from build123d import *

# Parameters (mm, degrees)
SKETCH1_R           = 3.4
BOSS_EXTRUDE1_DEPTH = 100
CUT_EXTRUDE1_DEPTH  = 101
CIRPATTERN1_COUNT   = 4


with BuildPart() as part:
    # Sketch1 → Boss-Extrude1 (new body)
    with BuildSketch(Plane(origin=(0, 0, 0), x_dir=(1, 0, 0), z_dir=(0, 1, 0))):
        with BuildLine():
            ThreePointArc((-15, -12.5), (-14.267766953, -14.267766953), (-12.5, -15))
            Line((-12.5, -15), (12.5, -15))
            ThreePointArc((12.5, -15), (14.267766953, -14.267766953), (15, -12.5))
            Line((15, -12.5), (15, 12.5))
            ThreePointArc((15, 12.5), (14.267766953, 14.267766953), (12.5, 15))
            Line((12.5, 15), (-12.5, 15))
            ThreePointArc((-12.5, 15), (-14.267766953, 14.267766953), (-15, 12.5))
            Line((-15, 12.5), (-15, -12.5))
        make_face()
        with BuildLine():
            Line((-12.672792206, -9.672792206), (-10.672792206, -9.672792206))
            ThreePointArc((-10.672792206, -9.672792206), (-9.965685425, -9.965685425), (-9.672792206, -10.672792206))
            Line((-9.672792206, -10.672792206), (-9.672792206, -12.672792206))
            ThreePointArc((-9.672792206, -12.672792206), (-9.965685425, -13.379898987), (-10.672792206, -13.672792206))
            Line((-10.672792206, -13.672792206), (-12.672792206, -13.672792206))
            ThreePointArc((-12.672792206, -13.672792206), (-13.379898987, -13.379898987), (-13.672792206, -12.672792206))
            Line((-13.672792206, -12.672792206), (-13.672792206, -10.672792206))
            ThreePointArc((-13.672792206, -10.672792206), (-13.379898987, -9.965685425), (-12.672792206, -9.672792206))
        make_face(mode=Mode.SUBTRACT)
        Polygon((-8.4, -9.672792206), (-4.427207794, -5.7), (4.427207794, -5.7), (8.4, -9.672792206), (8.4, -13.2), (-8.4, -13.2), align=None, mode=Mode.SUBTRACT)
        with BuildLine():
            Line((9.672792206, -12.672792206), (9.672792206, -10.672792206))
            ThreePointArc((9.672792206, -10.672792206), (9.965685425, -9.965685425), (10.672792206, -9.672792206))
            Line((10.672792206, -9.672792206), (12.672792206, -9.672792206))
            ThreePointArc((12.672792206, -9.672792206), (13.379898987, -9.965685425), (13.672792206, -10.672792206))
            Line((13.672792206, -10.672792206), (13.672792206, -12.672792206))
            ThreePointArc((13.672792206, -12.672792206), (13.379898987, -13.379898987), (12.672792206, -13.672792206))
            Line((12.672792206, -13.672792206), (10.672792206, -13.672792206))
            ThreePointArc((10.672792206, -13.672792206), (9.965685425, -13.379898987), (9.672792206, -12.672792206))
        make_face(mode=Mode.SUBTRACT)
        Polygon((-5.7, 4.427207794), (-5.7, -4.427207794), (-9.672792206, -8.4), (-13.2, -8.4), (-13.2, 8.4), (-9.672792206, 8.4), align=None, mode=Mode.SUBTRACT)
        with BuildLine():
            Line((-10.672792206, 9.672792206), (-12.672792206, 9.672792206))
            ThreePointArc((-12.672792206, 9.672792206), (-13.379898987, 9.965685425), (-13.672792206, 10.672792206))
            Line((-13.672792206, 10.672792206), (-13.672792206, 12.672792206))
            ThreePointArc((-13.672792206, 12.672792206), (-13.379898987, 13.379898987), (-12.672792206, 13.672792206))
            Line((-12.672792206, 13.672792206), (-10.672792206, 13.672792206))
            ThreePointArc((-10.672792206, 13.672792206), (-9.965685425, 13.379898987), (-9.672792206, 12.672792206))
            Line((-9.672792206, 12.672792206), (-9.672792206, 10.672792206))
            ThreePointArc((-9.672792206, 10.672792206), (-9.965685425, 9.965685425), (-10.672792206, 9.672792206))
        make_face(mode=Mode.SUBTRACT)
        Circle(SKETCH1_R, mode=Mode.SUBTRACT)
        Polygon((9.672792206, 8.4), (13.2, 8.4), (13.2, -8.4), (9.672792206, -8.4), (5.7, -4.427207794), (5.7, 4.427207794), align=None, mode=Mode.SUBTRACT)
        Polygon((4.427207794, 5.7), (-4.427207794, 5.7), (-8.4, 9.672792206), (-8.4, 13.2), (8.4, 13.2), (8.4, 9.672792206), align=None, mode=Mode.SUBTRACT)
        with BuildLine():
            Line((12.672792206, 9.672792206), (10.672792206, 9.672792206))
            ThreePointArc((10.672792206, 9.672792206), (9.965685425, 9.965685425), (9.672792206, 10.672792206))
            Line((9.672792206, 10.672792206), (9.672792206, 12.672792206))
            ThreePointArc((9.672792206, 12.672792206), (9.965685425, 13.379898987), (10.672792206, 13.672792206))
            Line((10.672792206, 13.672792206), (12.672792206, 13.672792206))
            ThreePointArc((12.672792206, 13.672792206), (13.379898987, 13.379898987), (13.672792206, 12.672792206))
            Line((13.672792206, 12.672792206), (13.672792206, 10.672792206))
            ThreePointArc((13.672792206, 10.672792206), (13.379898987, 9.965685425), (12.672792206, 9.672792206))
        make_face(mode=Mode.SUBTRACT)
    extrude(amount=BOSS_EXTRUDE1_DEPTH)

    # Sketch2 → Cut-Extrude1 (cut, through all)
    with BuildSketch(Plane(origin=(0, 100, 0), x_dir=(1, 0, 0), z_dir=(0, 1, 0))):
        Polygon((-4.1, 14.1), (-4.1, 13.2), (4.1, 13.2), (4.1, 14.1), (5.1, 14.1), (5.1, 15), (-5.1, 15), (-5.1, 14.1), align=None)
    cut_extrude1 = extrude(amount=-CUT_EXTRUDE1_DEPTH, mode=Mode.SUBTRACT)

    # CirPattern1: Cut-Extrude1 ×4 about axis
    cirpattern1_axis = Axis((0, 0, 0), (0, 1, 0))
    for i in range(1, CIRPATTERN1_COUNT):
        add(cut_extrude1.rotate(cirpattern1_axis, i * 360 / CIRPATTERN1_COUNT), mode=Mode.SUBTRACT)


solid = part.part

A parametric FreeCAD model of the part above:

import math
import FreeCAD as App
import Part
import Sketcher
Q = App.Units.Quantity


def add_polygon(sketch, points):
    """Adds a closed chain of lines whose ends are joined by coincident constraints."""
    first, n = sketch.GeometryCount, len(points)
    for a, b in zip(points, points[1:] + points[:1]):
        sketch.addGeometry(Part.LineSegment(App.Vector(*a, 0), App.Vector(*b, 0)), False)
    for i in range(n):
        sketch.addConstraint(Sketcher.Constraint("Coincident", first + i, 2, first + (i + 1) % n, 1))

doc = App.newDocument("Part")
params = doc.addObject("Spreadsheet::Sheet", "Params")
for row, (alias, value) in enumerate([
    ("sketch1_radius", "1 mm"),
    ("sketch1_diameter", "6.8 mm"),
    ("sketch1_radius2", "2.5 mm"),
    ("sketch1_width", "25 mm"),
    ("sketch1_width2", "2 mm"),
    ("pad1_length", "100 mm"),
    ("sketch2_width", "1 mm"),
    ("sketch2_width2", "8.2 mm"),
    ("sketch2_height", "0.9 mm"),
], start=1):
    params.set(f"A{row}", alias)
    params.set(f"B{row}", "=" + value)
    params.setAlias(f"B{row}", alias)

body = doc.addObject("PartDesign::Body", "Body")

sketch1 = body.newObject("Sketcher::SketchObject", "Sketch")
sketch1.AttachmentSupport = (doc.getObject("XZ_Plane"), [""])
sketch1.MapMode = "FlatFace"
sketch1.addGeometry(Part.ArcOfCircle(Part.Circle(App.Vector(-12.5, 12.5, 0), App.Vector(0, 0, 1), 2.5), math.radians(90), math.radians(180)), False)
sketch1.addGeometry(Part.LineSegment(App.Vector(-12.5, 15, 0), App.Vector(12.5, 15, 0)), False)
sketch1.addGeometry(Part.ArcOfCircle(Part.Circle(App.Vector(12.5, 12.5, 0), App.Vector(0, 0, 1), 2.5), math.radians(0), math.radians(90)), False)
sketch1.addGeometry(Part.LineSegment(App.Vector(15, 12.5, 0), App.Vector(15, -12.5, 0)), False)
sketch1.addGeometry(Part.ArcOfCircle(Part.Circle(App.Vector(12.5, -12.5, 0), App.Vector(0, 0, 1), 2.5), math.radians(-90), math.radians(0)), False)
sketch1.addGeometry(Part.LineSegment(App.Vector(12.5, -15, 0), App.Vector(-12.5, -15, 0)), False)
sketch1.addGeometry(Part.ArcOfCircle(Part.Circle(App.Vector(-12.5, -12.5, 0), App.Vector(0, 0, 1), 2.5), math.radians(180), math.radians(270)), False)
sketch1.addGeometry(Part.LineSegment(App.Vector(-15, -12.5, 0), App.Vector(-15, 12.5, 0)), False)
sketch1.addGeometry(Part.ArcOfCircle(Part.Circle(App.Vector(-12.7, 10.7, 0), App.Vector(0, 0, 1), 1), math.radians(-180), math.radians(-90)), False)
sketch1.addGeometry(Part.LineSegment(App.Vector(-12.7, 9.7, 0), App.Vector(-10.7, 9.7, 0)), False)
sketch1.addGeometry(Part.ArcOfCircle(Part.Circle(App.Vector(-10.7, 10.7, 0), App.Vector(0, 0, 1), 1), math.radians(-90), math.radians(0)), False)
sketch1.addGeometry(Part.LineSegment(App.Vector(-9.7, 10.7, 0), App.Vector(-9.7, 12.7, 0)), False)
sketch1.addGeometry(Part.ArcOfCircle(Part.Circle(App.Vector(-10.7, 12.7, 0), App.Vector(0, 0, 1), 1), math.radians(0), math.radians(90)), False)
sketch1.addGeometry(Part.LineSegment(App.Vector(-10.7, 13.7, 0), App.Vector(-12.7, 13.7, 0)), False)
sketch1.addGeometry(Part.ArcOfCircle(Part.Circle(App.Vector(-12.7, 12.7, 0), App.Vector(0, 0, 1), 1), math.radians(90), math.radians(180)), False)
sketch1.addGeometry(Part.LineSegment(App.Vector(-13.7, 12.7, 0), App.Vector(-13.7, 10.7, 0)), False)
add_polygon(sketch1, [(-8.4, 13.2), (-8.4, 9.7), (-4.4, 5.7), (4.4, 5.7), (8.4, 9.7), (8.4, 13.2)])
add_polygon(sketch1, [(-9.7, -8.4), (-5.7, -4.4), (-5.7, 4.4), (-9.7, 8.4), (-13.2, 8.4), (-13.2, -8.4)])
sketch1.addGeometry(Part.Circle(App.Vector(0, 0, 0), App.Vector(0, 0, 1), 3.4), False)
sketch1.addGeometry(Part.ArcOfCircle(Part.Circle(App.Vector(10.7, 12.7, 0), App.Vector(0, 0, 1), 1), math.radians(90), math.radians(180)), False)
sketch1.addGeometry(Part.LineSegment(App.Vector(9.7, 12.7, 0), App.Vector(9.7, 10.7, 0)), False)
sketch1.addGeometry(Part.ArcOfCircle(Part.Circle(App.Vector(10.7, 10.7, 0), App.Vector(0, 0, 1), 1), math.radians(-180), math.radians(-90)), False)
sketch1.addGeometry(Part.LineSegment(App.Vector(10.7, 9.7, 0), App.Vector(12.7, 9.7, 0)), False)
sketch1.addGeometry(Part.ArcOfCircle(Part.Circle(App.Vector(12.7, 10.7, 0), App.Vector(0, 0, 1), 1), math.radians(-90), math.radians(0)), False)
sketch1.addGeometry(Part.LineSegment(App.Vector(13.7, 10.7, 0), App.Vector(13.7, 12.7, 0)), False)
sketch1.addGeometry(Part.ArcOfCircle(Part.Circle(App.Vector(12.7, 12.7, 0), App.Vector(0, 0, 1), 1), math.radians(0), math.radians(90)), False)
sketch1.addGeometry(Part.LineSegment(App.Vector(12.7, 13.7, 0), App.Vector(10.7, 13.7, 0)), False)
add_polygon(sketch1, [(5.7, -4.4), (9.7, -8.4), (13.2, -8.4), (13.2, 8.4), (9.7, 8.4), (5.7, 4.4)])
sketch1.addGeometry(Part.ArcOfCircle(Part.Circle(App.Vector(-10.7, -10.7, 0), App.Vector(0, 0, 1), 1), math.radians(0), math.radians(90)), False)
sketch1.addGeometry(Part.LineSegment(App.Vector(-10.7, -9.7, 0), App.Vector(-12.7, -9.7, 0)), False)
sketch1.addGeometry(Part.ArcOfCircle(Part.Circle(App.Vector(-12.7, -10.7, 0), App.Vector(0, 0, 1), 1), math.radians(90), math.radians(180)), False)
sketch1.addGeometry(Part.LineSegment(App.Vector(-13.7, -10.7, 0), App.Vector(-13.7, -12.7, 0)), False)
sketch1.addGeometry(Part.ArcOfCircle(Part.Circle(App.Vector(-12.7, -12.7, 0), App.Vector(0, 0, 1), 1), math.radians(-180), math.radians(-90)), False)
sketch1.addGeometry(Part.LineSegment(App.Vector(-12.7, -13.7, 0), App.Vector(-10.7, -13.7, 0)), False)
sketch1.addGeometry(Part.ArcOfCircle(Part.Circle(App.Vector(-10.7, -12.7, 0), App.Vector(0, 0, 1), 1), math.radians(-90), math.radians(0)), False)
sketch1.addGeometry(Part.LineSegment(App.Vector(-9.7, -12.7, 0), App.Vector(-9.7, -10.7, 0)), False)
add_polygon(sketch1, [(8.4, -9.7), (4.4, -5.7), (-4.4, -5.7), (-8.4, -9.7), (-8.4, -13.2), (8.4, -13.2)])
sketch1.addGeometry(Part.ArcOfCircle(Part.Circle(App.Vector(12.7, -10.7, 0), App.Vector(0, 0, 1), 1), math.radians(0), math.radians(90)), False)
sketch1.addGeometry(Part.LineSegment(App.Vector(12.7, -9.7, 0), App.Vector(10.7, -9.7, 0)), False)
sketch1.addGeometry(Part.ArcOfCircle(Part.Circle(App.Vector(10.7, -10.7, 0), App.Vector(0, 0, 1), 1), math.radians(90), math.radians(180)), False)
sketch1.addGeometry(Part.LineSegment(App.Vector(9.7, -10.7, 0), App.Vector(9.7, -12.7, 0)), False)
sketch1.addGeometry(Part.ArcOfCircle(Part.Circle(App.Vector(10.7, -12.7, 0), App.Vector(0, 0, 1), 1), math.radians(-180), math.radians(-90)), False)
sketch1.addGeometry(Part.LineSegment(App.Vector(10.7, -13.7, 0), App.Vector(12.7, -13.7, 0)), False)
sketch1.addGeometry(Part.ArcOfCircle(Part.Circle(App.Vector(12.7, -12.7, 0), App.Vector(0, 0, 1), 1), math.radians(-90), math.radians(0)), False)
sketch1.addGeometry(Part.LineSegment(App.Vector(13.7, -12.7, 0), App.Vector(13.7, -10.7, 0)), False)
sketch1.addConstraint(Sketcher.Constraint("Tangent", 0, 1, 1, 1))
sketch1.addConstraint(Sketcher.Constraint("Tangent", 1, 2, 2, 2))
sketch1.addConstraint(Sketcher.Constraint("Tangent", 2, 1, 3, 1))
sketch1.addConstraint(Sketcher.Constraint("Tangent", 3, 2, 4, 2))
sketch1.addConstraint(Sketcher.Constraint("Tangent", 4, 1, 5, 1))
sketch1.addConstraint(Sketcher.Constraint("Tangent", 5, 2, 6, 2))
sketch1.addConstraint(Sketcher.Constraint("Tangent", 6, 1, 7, 1))
sketch1.addConstraint(Sketcher.Constraint("Tangent", 7, 2, 0, 2))
sketch1.addConstraint(Sketcher.Constraint("Tangent", 8, 2, 9, 1))
sketch1.addConstraint(Sketcher.Constraint("Tangent", 9, 2, 10, 1))
sketch1.addConstraint(Sketcher.Constraint("Tangent", 10, 2, 11, 1))
sketch1.addConstraint(Sketcher.Constraint("Tangent", 11, 2, 12, 1))
sketch1.addConstraint(Sketcher.Constraint("Tangent", 12, 2, 13, 1))
sketch1.addConstraint(Sketcher.Constraint("Tangent", 13, 2, 14, 1))
sketch1.addConstraint(Sketcher.Constraint("Tangent", 14, 2, 15, 1))
sketch1.addConstraint(Sketcher.Constraint("Tangent", 15, 2, 8, 1))
sketch1.addConstraint(Sketcher.Constraint("Tangent", 29, 2, 30, 1))
sketch1.addConstraint(Sketcher.Constraint("Tangent", 30, 2, 31, 1))
sketch1.addConstraint(Sketcher.Constraint("Tangent", 31, 2, 32, 1))
sketch1.addConstraint(Sketcher.Constraint("Tangent", 32, 2, 33, 1))
sketch1.addConstraint(Sketcher.Constraint("Tangent", 33, 2, 34, 1))
sketch1.addConstraint(Sketcher.Constraint("Tangent", 34, 2, 35, 1))
sketch1.addConstraint(Sketcher.Constraint("Tangent", 35, 2, 36, 1))
sketch1.addConstraint(Sketcher.Constraint("Tangent", 36, 2, 29, 1))
sketch1.addConstraint(Sketcher.Constraint("Tangent", 43, 2, 44, 1))
sketch1.addConstraint(Sketcher.Constraint("Tangent", 44, 2, 45, 1))
sketch1.addConstraint(Sketcher.Constraint("Tangent", 45, 2, 46, 1))
sketch1.addConstraint(Sketcher.Constraint("Tangent", 46, 2, 47, 1))
sketch1.addConstraint(Sketcher.Constraint("Tangent", 47, 2, 48, 1))
sketch1.addConstraint(Sketcher.Constraint("Tangent", 48, 2, 49, 1))
sketch1.addConstraint(Sketcher.Constraint("Tangent", 49, 2, 50, 1))
sketch1.addConstraint(Sketcher.Constraint("Tangent", 50, 2, 43, 1))
sketch1.addConstraint(Sketcher.Constraint("Tangent", 57, 2, 58, 1))
sketch1.addConstraint(Sketcher.Constraint("Tangent", 58, 2, 59, 1))
sketch1.addConstraint(Sketcher.Constraint("Tangent", 59, 2, 60, 1))
sketch1.addConstraint(Sketcher.Constraint("Tangent", 60, 2, 61, 1))
sketch1.addConstraint(Sketcher.Constraint("Tangent", 61, 2, 62, 1))
sketch1.addConstraint(Sketcher.Constraint("Tangent", 62, 2, 63, 1))
sketch1.addConstraint(Sketcher.Constraint("Tangent", 63, 2, 64, 1))
sketch1.addConstraint(Sketcher.Constraint("Tangent", 64, 2, 57, 1))
sketch1.addConstraint(Sketcher.Constraint("Horizontal", 1))
sketch1.addConstraint(Sketcher.Constraint("Vertical", 3))
sketch1.addConstraint(Sketcher.Constraint("Horizontal", 5))
sketch1.addConstraint(Sketcher.Constraint("Vertical", 7))
sketch1.addConstraint(Sketcher.Constraint("Horizontal", 9))
sketch1.addConstraint(Sketcher.Constraint("Vertical", 11))
sketch1.addConstraint(Sketcher.Constraint("Horizontal", 13))
sketch1.addConstraint(Sketcher.Constraint("Vertical", 15))
sketch1.addConstraint(Sketcher.Constraint("Vertical", 16))
sketch1.addConstraint(Sketcher.Constraint("Horizontal", 18))
sketch1.addConstraint(Sketcher.Constraint("Vertical", 20))
sketch1.addConstraint(Sketcher.Constraint("Horizontal", 21))
sketch1.addConstraint(Sketcher.Constraint("Vertical", 23))
sketch1.addConstraint(Sketcher.Constraint("Horizontal", 25))
sketch1.addConstraint(Sketcher.Constraint("Vertical", 26))
sketch1.addConstraint(Sketcher.Constraint("Horizontal", 27))
sketch1.addConstraint(Sketcher.Constraint("Vertical", 30))
sketch1.addConstraint(Sketcher.Constraint("Horizontal", 32))
sketch1.addConstraint(Sketcher.Constraint("Vertical", 34))
sketch1.addConstraint(Sketcher.Constraint("Horizontal", 36))
sketch1.addConstraint(Sketcher.Constraint("Horizontal", 38))
sketch1.addConstraint(Sketcher.Constraint("Vertical", 39))
sketch1.addConstraint(Sketcher.Constraint("Horizontal", 40))
sketch1.addConstraint(Sketcher.Constraint("Vertical", 42))
sketch1.addConstraint(Sketcher.Constraint("Horizontal", 44))
sketch1.addConstraint(Sketcher.Constraint("Vertical", 46))
sketch1.addConstraint(Sketcher.Constraint("Horizontal", 48))
sketch1.addConstraint(Sketcher.Constraint("Vertical", 50))
sketch1.addConstraint(Sketcher.Constraint("Horizontal", 52))
sketch1.addConstraint(Sketcher.Constraint("Vertical", 54))
sketch1.addConstraint(Sketcher.Constraint("Horizontal", 55))
sketch1.addConstraint(Sketcher.Constraint("Vertical", 56))
sketch1.addConstraint(Sketcher.Constraint("Horizontal", 58))
sketch1.addConstraint(Sketcher.Constraint("Vertical", 60))
sketch1.addConstraint(Sketcher.Constraint("Horizontal", 62))
sketch1.addConstraint(Sketcher.Constraint("Vertical", 64))
sketch1.addConstraint(Sketcher.Constraint("Coincident", 28, 3, -1, 1))
sketch1.addConstraint(Sketcher.Constraint("Equal", 0, 2))
sketch1.addConstraint(Sketcher.Constraint("Equal", 2, 4))
sketch1.addConstraint(Sketcher.Constraint("Equal", 4, 6))
sketch1.addConstraint(Sketcher.Constraint("Equal", 8, 10))
sketch1.addConstraint(Sketcher.Constraint("Equal", 10, 12))
sketch1.addConstraint(Sketcher.Constraint("Equal", 12, 14))
sketch1.addConstraint(Sketcher.Constraint("Equal", 14, 29))
sketch1.addConstraint(Sketcher.Constraint("Equal", 29, 31))
sketch1.addConstraint(Sketcher.Constraint("Equal", 31, 33))
sketch1.addConstraint(Sketcher.Constraint("Equal", 33, 35))
sketch1.addConstraint(Sketcher.Constraint("Equal", 35, 43))
sketch1.addConstraint(Sketcher.Constraint("Equal", 43, 45))
sketch1.addConstraint(Sketcher.Constraint("Equal", 45, 47))
sketch1.addConstraint(Sketcher.Constraint("Equal", 47, 49))
sketch1.addConstraint(Sketcher.Constraint("Equal", 49, 57))
sketch1.addConstraint(Sketcher.Constraint("Equal", 57, 59))
sketch1.addConstraint(Sketcher.Constraint("Equal", 59, 61))
sketch1.addConstraint(Sketcher.Constraint("Equal", 61, 63))
sketch1.addConstraint(Sketcher.Constraint("Symmetric", 0, 3, 4, 3, -1, 1))
sketch1.addConstraint(Sketcher.Constraint("Symmetric", 31, 3, 43, 3, -1, 1))
sketch1.addConstraint(Sketcher.Constraint("Symmetric", 35, 3, 47, 3, -1, 1))
sketch1.addConstraint(Sketcher.Constraint("Symmetric", 8, 3, 57, 3, -1, 1))
sketch1.addConstraint(Sketcher.Constraint("Symmetric", 12, 3, 61, 3, -1, 1))
sketch1.addConstraint(Sketcher.Constraint("Symmetric", 24, 2, 37, 2, -1, 1))
sketch1.addConstraint(Sketcher.Constraint("Symmetric", 26, 2, 39, 2, -1, 1))
sketch1.addConstraint(Sketcher.Constraint("Symmetric", 22, 2, 41, 2, -1, 1))
sketch1.addConstraint(Sketcher.Constraint("Symmetric", 17, 2, 51, 2, -1, 1))
sketch1.addConstraint(Sketcher.Constraint("Symmetric", 19, 2, 53, 2, -1, 1))
sketch1.addConstraint(Sketcher.Constraint("Symmetric", 21, 2, 55, 2, -1, 1))
sketch1.addConstraint(Sketcher.Constraint("Symmetric", 12, 3, 29, 3, -2))
sketch1.addConstraint(Sketcher.Constraint("Symmetric", 8, 3, 33, 3, -2))
sketch1.addConstraint(Sketcher.Constraint("Symmetric", 16, 2, 19, 2, -2))
sketch1.addConstraint(Sketcher.Constraint("Symmetric", 27, 2, 37, 2, -2))
sketch1.addConstraint(Sketcher.Constraint("Perpendicular", 17, 19))
sketch1.addConstraint(Sketcher.Constraint("Parallel", 19, 22))
sketch1.addConstraint(Sketcher.Constraint("Perpendicular", 22, 24))
sketch1.addConstraint(Sketcher.Constraint("Parallel", 24, 37))
sketch1.addConstraint(Sketcher.Constraint("Perpendicular", 37, 41))
sketch1.addConstraint(Sketcher.Constraint("Perpendicular", 41, 51))
sketch1.addConstraint(Sketcher.Constraint("Perpendicular", 51, 53))
sketch1.addConstraint(Sketcher.Constraint("Horizontal", 9, 2, 16, 2))
sketch1.addConstraint(Sketcher.Constraint("Horizontal", 23, 2, 41, 2))
sketch1.addConstraint(Sketcher.Constraint("Vertical", 11, 2, 24, 2))
sketch1.addConstraint(Sketcher.Constraint("Equal", 5, 3))
sketch1.addConstraint(Sketcher.Constraint("Equal", 62, 11))
sketch1.addConstraint(Sketcher.Constraint("Equal", 40, 16))
sketch1.addConstraint(Sketcher.Constraint("Equal", 52, 23))
sketch1.addConstraint(Sketcher.Constraint("Equal", 55, 26))
sketch1.addConstraint(Sketcher.Constraint("Radius", 8, Q("1 mm")))
sketch1.addConstraint(Sketcher.Constraint("Diameter", 28, Q("6.8 mm")))
sketch1.addConstraint(Sketcher.Constraint("Radius", 0, Q("2.5 mm")))
sketch1.addConstraint(Sketcher.Constraint("DistanceX", 1, 1, 1, 2, Q("25 mm")))
sketch1.addConstraint(Sketcher.Constraint("DistanceX", 9, 1, 9, 2, Q("2 mm")))
sketch1.addConstraint(Sketcher.Constraint("DistanceX", 21, 2, 21, 1, Q("16.8 mm")))
sketch1.addConstraint(Sketcher.Constraint("DistanceY", -1, 1, 17, 2, Q("5.7 mm")))
sketch1.addConstraint(Sketcher.Constraint("DistanceY", -1, 1, 20, 2, Q("13.2 mm")))
sketch1.addConstraint(Sketcher.Constraint("DistanceX", 22, 2, -1, 1, Q("5.7 mm")))
sketch1.addConstraint(Sketcher.Constraint("DistanceX", 18, 1, 18, 2, Q("8.854416 mm")))
sketch1.setExpression("Constraints[149]", "Params.sketch1_radius")
sketch1.setExpression("Constraints[150]", "Params.sketch1_diameter")
sketch1.setExpression("Constraints[151]", "Params.sketch1_radius2")
sketch1.setExpression("Constraints[152]", "Params.sketch1_width")
sketch1.setExpression("Constraints[153]", "Params.sketch1_width2")
pad1 = body.newObject("PartDesign::Pad", "Pad")
pad1.Profile = sketch1
pad1.setExpression("Length", "Params.pad1_length")
pad1.Reversed = True

sketch2 = body.newObject("Sketcher::SketchObject", "Sketch001")
sketch2.AttachmentSupport = (doc.getObject("XZ_Plane"), [""])
sketch2.MapMode = "FlatFace"
sketch2.AttachmentOffset = App.Placement(App.Vector(0, 0, -100), App.Rotation())
add_polygon(sketch2, [(-4.1, -14.1), (-4.1, -13.2), (4.1, -13.2), (4.1, -14.1), (5.1, -14.1), (5.1, -15), (-5.1, -15), (-5.1, -14.1)])
sketch2.addConstraint(Sketcher.Constraint("Vertical", 0))
sketch2.addConstraint(Sketcher.Constraint("Horizontal", 1))
sketch2.addConstraint(Sketcher.Constraint("Vertical", 2))
sketch2.addConstraint(Sketcher.Constraint("Horizontal", 3))
sketch2.addConstraint(Sketcher.Constraint("Vertical", 4))
sketch2.addConstraint(Sketcher.Constraint("Horizontal", 5))
sketch2.addConstraint(Sketcher.Constraint("Vertical", 6))
sketch2.addConstraint(Sketcher.Constraint("Horizontal", 7))
sketch2.addConstraint(Sketcher.Constraint("Symmetric", 3, 2, 6, 2, -2))
sketch2.addConstraint(Sketcher.Constraint("Equal", 3, 7))
sketch2.addConstraint(Sketcher.Constraint("Equal", 2, 4))
sketch2.addConstraint(Sketcher.Constraint("DistanceX", 3, 1, 3, 2, Q("1 mm")))
sketch2.addConstraint(Sketcher.Constraint("DistanceX", 1, 1, 1, 2, Q("8.2 mm")))
sketch2.addConstraint(Sketcher.Constraint("DistanceY", 0, 1, 0, 2, Q("0.9 mm")))
sketch2.addConstraint(Sketcher.Constraint("DistanceY", 4, 2, -1, 1, Q("15 mm")))
sketch2.setExpression("Constraints[19]", "Params.sketch2_width")
sketch2.setExpression("Constraints[20]", "Params.sketch2_width2")
sketch2.setExpression("Constraints[21]", "Params.sketch2_height")
pocket1 = body.newObject("PartDesign::Pocket", "Pocket")
pocket1.Profile = sketch2
pocket1.Type = "ThroughAll"
pocket1.Reversed = True
doc.recompute()

polarpattern = body.newObject("PartDesign::PolarPattern", "PolarPattern")
polarpattern.Originals = [pocket1]
polarpattern.Axis = (doc.getObject("Y_Axis"), [""])
polarpattern.Angle = 360
polarpattern.Occurrences = 4
body.Tip = polarpattern

doc.recompute()
